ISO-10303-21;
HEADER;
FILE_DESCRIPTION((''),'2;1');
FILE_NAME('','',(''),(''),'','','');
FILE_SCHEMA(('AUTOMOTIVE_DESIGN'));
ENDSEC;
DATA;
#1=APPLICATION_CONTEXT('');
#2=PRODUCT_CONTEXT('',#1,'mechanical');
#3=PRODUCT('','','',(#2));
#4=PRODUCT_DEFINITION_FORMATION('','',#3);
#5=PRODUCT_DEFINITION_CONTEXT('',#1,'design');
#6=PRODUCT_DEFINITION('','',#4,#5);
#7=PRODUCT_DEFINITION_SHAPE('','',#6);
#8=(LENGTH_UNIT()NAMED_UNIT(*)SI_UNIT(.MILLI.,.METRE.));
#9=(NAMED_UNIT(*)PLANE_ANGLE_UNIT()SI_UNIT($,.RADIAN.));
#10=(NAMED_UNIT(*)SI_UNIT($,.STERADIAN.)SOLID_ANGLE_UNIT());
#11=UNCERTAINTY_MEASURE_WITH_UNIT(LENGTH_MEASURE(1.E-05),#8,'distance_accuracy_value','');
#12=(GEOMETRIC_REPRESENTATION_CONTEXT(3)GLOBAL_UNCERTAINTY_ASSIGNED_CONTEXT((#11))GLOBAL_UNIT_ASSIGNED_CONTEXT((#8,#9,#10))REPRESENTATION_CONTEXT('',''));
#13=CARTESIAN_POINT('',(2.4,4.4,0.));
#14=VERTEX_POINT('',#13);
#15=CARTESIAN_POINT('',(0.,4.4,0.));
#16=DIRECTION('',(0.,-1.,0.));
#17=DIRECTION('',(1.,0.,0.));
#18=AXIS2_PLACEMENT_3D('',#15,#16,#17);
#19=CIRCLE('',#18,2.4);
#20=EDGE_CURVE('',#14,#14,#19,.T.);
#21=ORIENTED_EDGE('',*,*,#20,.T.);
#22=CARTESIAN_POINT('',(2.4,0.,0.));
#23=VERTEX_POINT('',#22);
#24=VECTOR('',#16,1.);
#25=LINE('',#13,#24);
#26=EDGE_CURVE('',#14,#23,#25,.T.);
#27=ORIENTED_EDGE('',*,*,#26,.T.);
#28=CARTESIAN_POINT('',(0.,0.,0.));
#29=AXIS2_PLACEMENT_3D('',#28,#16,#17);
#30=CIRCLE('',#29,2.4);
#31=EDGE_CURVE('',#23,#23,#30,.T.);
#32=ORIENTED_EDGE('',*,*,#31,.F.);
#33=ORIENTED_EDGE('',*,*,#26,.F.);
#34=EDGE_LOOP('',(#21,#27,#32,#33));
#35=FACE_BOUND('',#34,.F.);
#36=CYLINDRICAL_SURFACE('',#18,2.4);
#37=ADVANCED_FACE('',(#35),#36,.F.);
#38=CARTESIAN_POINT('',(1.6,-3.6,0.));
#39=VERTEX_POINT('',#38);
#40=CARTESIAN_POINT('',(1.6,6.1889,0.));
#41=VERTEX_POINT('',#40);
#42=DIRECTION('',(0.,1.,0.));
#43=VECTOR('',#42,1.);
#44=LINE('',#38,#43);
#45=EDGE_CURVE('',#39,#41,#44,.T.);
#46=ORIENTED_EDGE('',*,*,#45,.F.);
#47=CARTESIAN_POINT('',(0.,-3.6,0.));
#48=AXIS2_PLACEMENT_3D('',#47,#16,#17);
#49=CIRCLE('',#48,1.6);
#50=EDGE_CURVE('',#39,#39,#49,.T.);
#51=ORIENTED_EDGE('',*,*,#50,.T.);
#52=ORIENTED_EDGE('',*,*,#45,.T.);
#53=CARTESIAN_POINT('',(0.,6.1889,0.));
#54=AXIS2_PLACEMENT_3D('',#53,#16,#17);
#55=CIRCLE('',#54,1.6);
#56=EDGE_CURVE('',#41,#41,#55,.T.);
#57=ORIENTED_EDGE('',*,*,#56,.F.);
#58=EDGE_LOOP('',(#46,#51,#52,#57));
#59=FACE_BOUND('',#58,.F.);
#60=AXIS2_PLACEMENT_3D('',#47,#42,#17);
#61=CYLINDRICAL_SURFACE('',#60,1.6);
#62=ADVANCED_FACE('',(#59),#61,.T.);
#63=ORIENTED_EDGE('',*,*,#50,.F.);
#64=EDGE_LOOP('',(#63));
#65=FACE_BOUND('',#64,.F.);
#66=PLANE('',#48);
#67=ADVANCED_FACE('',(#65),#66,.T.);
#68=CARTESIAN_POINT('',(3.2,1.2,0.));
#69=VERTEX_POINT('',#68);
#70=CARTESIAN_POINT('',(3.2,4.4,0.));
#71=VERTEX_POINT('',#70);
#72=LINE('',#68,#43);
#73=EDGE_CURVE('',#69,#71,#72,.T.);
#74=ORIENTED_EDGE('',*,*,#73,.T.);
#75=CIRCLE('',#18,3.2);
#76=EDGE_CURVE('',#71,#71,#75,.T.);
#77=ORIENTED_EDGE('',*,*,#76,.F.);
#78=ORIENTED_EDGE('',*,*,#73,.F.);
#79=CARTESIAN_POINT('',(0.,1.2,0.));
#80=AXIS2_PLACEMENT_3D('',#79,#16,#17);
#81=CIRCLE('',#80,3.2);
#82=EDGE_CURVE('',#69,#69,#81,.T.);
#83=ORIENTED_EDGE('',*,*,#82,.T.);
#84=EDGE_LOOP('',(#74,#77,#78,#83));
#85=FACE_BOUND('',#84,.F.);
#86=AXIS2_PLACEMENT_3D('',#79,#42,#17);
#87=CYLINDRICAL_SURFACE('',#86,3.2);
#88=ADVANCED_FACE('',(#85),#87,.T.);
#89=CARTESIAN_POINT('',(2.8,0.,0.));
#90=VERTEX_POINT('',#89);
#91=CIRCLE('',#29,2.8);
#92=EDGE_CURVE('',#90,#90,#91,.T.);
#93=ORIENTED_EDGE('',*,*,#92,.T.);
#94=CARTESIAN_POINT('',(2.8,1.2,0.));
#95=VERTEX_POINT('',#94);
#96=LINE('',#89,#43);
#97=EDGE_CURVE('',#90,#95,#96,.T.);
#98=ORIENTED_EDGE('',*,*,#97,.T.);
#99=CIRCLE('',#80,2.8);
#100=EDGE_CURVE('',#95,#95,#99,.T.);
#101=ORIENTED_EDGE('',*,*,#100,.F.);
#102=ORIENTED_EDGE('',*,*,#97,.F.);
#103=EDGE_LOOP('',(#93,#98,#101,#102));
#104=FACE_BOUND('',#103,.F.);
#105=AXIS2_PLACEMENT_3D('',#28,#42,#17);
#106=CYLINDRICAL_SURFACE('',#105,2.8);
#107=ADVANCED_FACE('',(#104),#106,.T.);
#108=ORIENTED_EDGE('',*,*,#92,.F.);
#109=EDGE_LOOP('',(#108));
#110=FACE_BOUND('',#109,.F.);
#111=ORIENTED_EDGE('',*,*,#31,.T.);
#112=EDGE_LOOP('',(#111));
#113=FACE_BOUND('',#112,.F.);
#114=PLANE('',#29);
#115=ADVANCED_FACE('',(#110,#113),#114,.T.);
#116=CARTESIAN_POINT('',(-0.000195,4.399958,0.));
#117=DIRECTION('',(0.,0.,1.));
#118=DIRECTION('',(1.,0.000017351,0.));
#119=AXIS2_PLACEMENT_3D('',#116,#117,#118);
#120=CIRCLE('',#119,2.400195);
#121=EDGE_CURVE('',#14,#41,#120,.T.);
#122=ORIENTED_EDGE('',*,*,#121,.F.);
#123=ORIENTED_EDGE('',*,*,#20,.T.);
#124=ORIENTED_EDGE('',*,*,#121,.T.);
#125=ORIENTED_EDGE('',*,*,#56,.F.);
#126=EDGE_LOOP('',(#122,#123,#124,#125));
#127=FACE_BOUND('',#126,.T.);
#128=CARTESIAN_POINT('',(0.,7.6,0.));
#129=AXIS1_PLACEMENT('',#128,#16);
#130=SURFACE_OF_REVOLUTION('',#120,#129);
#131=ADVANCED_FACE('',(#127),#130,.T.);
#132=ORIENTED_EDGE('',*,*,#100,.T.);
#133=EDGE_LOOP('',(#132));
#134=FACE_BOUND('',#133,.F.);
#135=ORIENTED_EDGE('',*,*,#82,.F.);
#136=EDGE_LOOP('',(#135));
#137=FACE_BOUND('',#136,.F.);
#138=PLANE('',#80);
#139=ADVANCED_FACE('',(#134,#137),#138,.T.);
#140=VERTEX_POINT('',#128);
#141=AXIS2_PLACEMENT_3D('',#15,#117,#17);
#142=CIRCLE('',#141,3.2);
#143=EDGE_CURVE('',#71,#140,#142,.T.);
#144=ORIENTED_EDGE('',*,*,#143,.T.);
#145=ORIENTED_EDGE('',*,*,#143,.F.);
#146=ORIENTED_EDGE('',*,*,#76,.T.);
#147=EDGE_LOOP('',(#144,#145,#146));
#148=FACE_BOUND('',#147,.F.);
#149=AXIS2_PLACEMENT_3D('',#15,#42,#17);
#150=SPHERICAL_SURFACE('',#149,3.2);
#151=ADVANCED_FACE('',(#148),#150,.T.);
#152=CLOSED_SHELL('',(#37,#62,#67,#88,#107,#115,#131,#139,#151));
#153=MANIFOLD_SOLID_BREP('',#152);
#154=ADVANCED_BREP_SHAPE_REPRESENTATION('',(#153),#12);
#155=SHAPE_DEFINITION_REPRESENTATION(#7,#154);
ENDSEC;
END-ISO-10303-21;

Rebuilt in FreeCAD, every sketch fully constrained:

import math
import FreeCAD as App
import Part
import Sketcher
Q = App.Units.Quantity

doc = App.newDocument("Part")
body = doc.addObject("PartDesign::Body", "Body")

# Sketch on XY plane
sketch1 = body.newObject("Sketcher::SketchObject", "Sketch")
sketch1.AttachmentSupport = (doc.getObject("XY_Plane"), [""])
sketch1.MapMode = "FlatFace"
sketch1.addGeometry(Part.ArcOfCircle(Part.Circle(App.Vector(0, 4.4, 0), App.Vector(0, 0, 1), 2.4), math.radians(0), math.radians(48.190411)), False)
sketch1.addGeometry(Part.LineSegment(App.Vector(2.4, 4.4, 0), App.Vector(2.4, 0, 0)), False)
sketch1.addGeometry(Part.LineSegment(App.Vector(2.4, 0, 0), App.Vector(2.8, 0, 0)), False)
sketch1.addGeometry(Part.LineSegment(App.Vector(2.8, 0, 0), App.Vector(2.8, 1.2, 0)), False)
sketch1.addGeometry(Part.LineSegment(App.Vector(2.8, 1.2, 0), App.Vector(3.2, 1.2, 0)), False)
sketch1.addGeometry(Part.LineSegment(App.Vector(3.2, 1.2, 0), App.Vector(3.2, 4.4, 0)), False)
sketch1.addGeometry(Part.ArcOfCircle(Part.Circle(App.Vector(0, 4.4, 0), App.Vector(0, 0, 1), 3.2), math.radians(0), math.radians(90)), False)
sketch1.addGeometry(Part.LineSegment(App.Vector(0, 7.6, 0), App.Vector(0, -3.6, 0)), False)
sketch1.addGeometry(Part.LineSegment(App.Vector(0, -3.6, 0), App.Vector(1.6, -3.6, 0)), False)
sketch1.addGeometry(Part.LineSegment(App.Vector(1.6, -3.6, 0), App.Vector(1.6, 6.1889, 0)), False)
sketch1.addConstraint(Sketcher.Constraint("Tangent", 0, 1, 1, 1))
sketch1.addConstraint(Sketcher.Constraint("Coincident", 1, 2, 2, 1))
sketch1.addConstraint(Sketcher.Constraint("Coincident", 2, 2, 3, 1))
sketch1.addConstraint(Sketcher.Constraint("Coincident", 3, 2, 4, 1))
sketch1.addConstraint(Sketcher.Constraint("Coincident", 4, 2, 5, 1))
sketch1.addConstraint(Sketcher.Constraint("Tangent", 5, 2, 6, 1))
sketch1.addConstraint(Sketcher.Constraint("Coincident", 6, 2, 7, 1))
sketch1.addConstraint(Sketcher.Constraint("Coincident", 7, 2, 8, 1))
sketch1.addConstraint(Sketcher.Constraint("Coincident", 8, 2, 9, 1))
sketch1.addConstraint(Sketcher.Constraint("Coincident", 9, 2, 0, 2))
sketch1.addConstraint(Sketcher.Constraint("Vertical", 1))
sketch1.addConstraint(Sketcher.Constraint("Horizontal", 2))
sketch1.addConstraint(Sketcher.Constraint("Vertical", 3))
sketch1.addConstraint(Sketcher.Constraint("Horizontal", 4))
sketch1.addConstraint(Sketcher.Constraint("Vertical", 5))
sketch1.addConstraint(Sketcher.Constraint("Vertical", 7))
sketch1.addConstraint(Sketcher.Constraint("Horizontal", 8))
sketch1.addConstraint(Sketcher.Constraint("Vertical", 9))
sketch1.addConstraint(Sketcher.Constraint("Coincident", 6, 3, 0, 3))
sketch1.addConstraint(Sketcher.Constraint("PointOnObject", 0, 3, -2))
sketch1.addConstraint(Sketcher.Constraint("PointOnObject", 1, 2, -1))
sketch1.addConstraint(Sketcher.Constraint("PointOnObject", 6, 2, -2))
sketch1.addConstraint(Sketcher.Constraint("Equal", 2, 4))
sketch1.addConstraint(Sketcher.Constraint("Radius", 0, Q("2.4 mm")))
sketch1.addConstraint(Sketcher.Constraint("Radius", 6, Q("3.2 mm")))
sketch1.addConstraint(Sketcher.Constraint("DistanceY", 3, 1, 3, 2, Q("1.2 mm")))
sketch1.addConstraint(Sketcher.Constraint("DistanceY", 5, 1, 5, 2, Q("3.2 mm")))
sketch1.addConstraint(Sketcher.Constraint("DistanceY", 7, 2, -1, 1, Q("3.6 mm")))
sketch1.addConstraint(Sketcher.Constraint("DistanceX", 8, 2, 2, 2, Q("1.2 mm")))
revolution = body.newObject("PartDesign::Revolution", "Revolution")
revolution.Profile = sketch1
revolution.ReferenceAxis = (sketch1, ["V_Axis"])
revolution.Angle = 360

doc.recompute()
